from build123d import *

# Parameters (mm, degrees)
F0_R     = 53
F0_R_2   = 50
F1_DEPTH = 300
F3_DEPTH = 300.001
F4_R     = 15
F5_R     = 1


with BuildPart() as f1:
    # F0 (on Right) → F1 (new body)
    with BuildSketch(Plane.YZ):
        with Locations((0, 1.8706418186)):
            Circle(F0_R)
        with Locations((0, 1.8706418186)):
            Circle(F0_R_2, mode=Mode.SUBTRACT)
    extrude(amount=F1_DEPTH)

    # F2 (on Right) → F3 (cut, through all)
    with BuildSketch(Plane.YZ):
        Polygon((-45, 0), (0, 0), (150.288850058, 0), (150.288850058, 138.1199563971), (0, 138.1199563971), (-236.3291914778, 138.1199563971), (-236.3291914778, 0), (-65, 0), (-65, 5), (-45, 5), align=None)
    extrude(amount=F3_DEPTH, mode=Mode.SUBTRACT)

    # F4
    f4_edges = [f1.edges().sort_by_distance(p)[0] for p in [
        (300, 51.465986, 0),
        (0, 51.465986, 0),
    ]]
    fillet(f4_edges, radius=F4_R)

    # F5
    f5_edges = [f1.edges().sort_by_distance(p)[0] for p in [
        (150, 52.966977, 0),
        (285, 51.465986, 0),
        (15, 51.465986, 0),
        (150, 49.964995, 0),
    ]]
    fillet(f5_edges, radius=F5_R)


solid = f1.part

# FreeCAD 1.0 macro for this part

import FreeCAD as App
import Part
import Sketcher

V = App.Vector
Q = App.Units.Quantity


def edges_at(feature, points):
    """Names of the edges that pass closest to the given points."""
    edges = feature.Shape.Edges
    near = lambda p: min(range(len(edges)), key=lambda i: edges[i].distToShape(Part.Vertex(*p))[0])
    return sorted({f"Edge{near(p) + 1}" for p in points})


def add_polygon(sketch, points):
    """Adds a closed chain of lines whose ends are joined by coincident constraints."""
    first, n = sketch.GeometryCount, len(points)
    for a, b in zip(points, points[1:] + points[:1]):
        sketch.addGeometry(Part.LineSegment(App.Vector(*a, 0), App.Vector(*b, 0)), False)
    for i in range(n):
        sketch.addConstraint(Sketcher.Constraint("Coincident", first + i, 2, first + (i + 1) % n, 1))

doc = App.newDocument("Part")
body = doc.addObject("PartDesign::Body", "Body")

sketch1 = doc.addObject("Sketcher::SketchObject", "Sketch")
body.addObject(sketch1)
sketch1.AttachmentSupport = (doc.YZ_Plane, [""])
sketch1.MapMode = "FlatFace"
sketch1.addGeometry([
    Part.Circle(V(0, 2, 0), V(0, 0, 1), 53),
    Part.Circle(V(0, 2, 0), V(0, 0, 1), 50),
], False)
sketch1.addConstraint([
    Sketcher.Constraint("Coincident", 1, 3, 0, 3),
    Sketcher.Constraint("PointOnObject", 0, 3, -2),
    Sketcher.Constraint("Diameter", 0, Q("106 mm")),
    Sketcher.Constraint("Diameter", 1, Q("100 mm")),
    Sketcher.Constraint("DistanceY", -1, 1, 0, 3, Q("1.870642 mm")),
])
pad1 = doc.addObject("PartDesign::Pad", "Pad")
body.addObject(pad1)
pad1.Profile = sketch1
pad1.Length = 300

sketch2 = doc.addObject("Sketcher::SketchObject", "Sketch001")
body.addObject(sketch2)
sketch2.AttachmentSupport = (doc.YZ_Plane, [""])
sketch2.MapMode = "FlatFace"
add_polygon(sketch2, [(-45, 0), (150, 0), (150, 138), (-236, 138), (-236, 0), (-65, 0), (-65, 5), (-45, 5)])
sketch2.addConstraint([
    Sketcher.Constraint("Horizontal", 0),
    Sketcher.Constraint("Vertical", 1),
    Sketcher.Constraint("Horizontal", 2),
    Sketcher.Constraint("Vertical", 3),
    Sketcher.Constraint("Horizontal", 4),
    Sketcher.Constraint("Vertical", 5),
    Sketcher.Constraint("Horizontal", 6),
    Sketcher.Constraint("Vertical", 7),
    Sketcher.Constraint("PointOnObject", 0, 2, -1),
    Sketcher.Constraint("PointOnObject", 3, 2, -1),
    Sketcher.Constraint("DistanceX", 6, 1, 6, 2, Q("20 mm")),
    Sketcher.Constraint("DistanceY", 5, 1, 5, 2, Q("5 mm")),
    Sketcher.Constraint("DistanceX", 4, 2, -1, 1, Q("65 mm")),
    Sketcher.Constraint("DistanceX", 0, 1, 0, 2, Q("195.28885 mm")),
    Sketcher.Constraint("DistanceX", 2, 2, 2, 1, Q("386.618042 mm")),
    Sketcher.Constraint("DistanceY", 1, 1, 1, 2, Q("138.119956 mm")),
])
pocket1 = doc.addObject("PartDesign::Pocket", "Pocket")
body.addObject(pocket1)
pocket1.Profile = sketch2
pocket1.Type = "ThroughAll"
pocket1.Reversed = True
doc.recompute()

fillet = doc.addObject("PartDesign::Fillet", "Fillet")
body.addObject(fillet)
fillet.Base = (pocket1, edges_at(pocket1, [(300, 51.466, 0), (0, 51.466, 0)]))
fillet.Radius = 15
doc.recompute()

fillet2 = doc.addObject("PartDesign::Fillet", "Fillet001")
body.addObject(fillet2)
fillet2.Base = (fillet, edges_at(fillet, [
    (150, 52.967, 0),
    (285, 51.466, 0),
    (15, 51.466, 0),
    (150, 49.965, 0),
]))
fillet2.Radius = 1

doc.recompute()
